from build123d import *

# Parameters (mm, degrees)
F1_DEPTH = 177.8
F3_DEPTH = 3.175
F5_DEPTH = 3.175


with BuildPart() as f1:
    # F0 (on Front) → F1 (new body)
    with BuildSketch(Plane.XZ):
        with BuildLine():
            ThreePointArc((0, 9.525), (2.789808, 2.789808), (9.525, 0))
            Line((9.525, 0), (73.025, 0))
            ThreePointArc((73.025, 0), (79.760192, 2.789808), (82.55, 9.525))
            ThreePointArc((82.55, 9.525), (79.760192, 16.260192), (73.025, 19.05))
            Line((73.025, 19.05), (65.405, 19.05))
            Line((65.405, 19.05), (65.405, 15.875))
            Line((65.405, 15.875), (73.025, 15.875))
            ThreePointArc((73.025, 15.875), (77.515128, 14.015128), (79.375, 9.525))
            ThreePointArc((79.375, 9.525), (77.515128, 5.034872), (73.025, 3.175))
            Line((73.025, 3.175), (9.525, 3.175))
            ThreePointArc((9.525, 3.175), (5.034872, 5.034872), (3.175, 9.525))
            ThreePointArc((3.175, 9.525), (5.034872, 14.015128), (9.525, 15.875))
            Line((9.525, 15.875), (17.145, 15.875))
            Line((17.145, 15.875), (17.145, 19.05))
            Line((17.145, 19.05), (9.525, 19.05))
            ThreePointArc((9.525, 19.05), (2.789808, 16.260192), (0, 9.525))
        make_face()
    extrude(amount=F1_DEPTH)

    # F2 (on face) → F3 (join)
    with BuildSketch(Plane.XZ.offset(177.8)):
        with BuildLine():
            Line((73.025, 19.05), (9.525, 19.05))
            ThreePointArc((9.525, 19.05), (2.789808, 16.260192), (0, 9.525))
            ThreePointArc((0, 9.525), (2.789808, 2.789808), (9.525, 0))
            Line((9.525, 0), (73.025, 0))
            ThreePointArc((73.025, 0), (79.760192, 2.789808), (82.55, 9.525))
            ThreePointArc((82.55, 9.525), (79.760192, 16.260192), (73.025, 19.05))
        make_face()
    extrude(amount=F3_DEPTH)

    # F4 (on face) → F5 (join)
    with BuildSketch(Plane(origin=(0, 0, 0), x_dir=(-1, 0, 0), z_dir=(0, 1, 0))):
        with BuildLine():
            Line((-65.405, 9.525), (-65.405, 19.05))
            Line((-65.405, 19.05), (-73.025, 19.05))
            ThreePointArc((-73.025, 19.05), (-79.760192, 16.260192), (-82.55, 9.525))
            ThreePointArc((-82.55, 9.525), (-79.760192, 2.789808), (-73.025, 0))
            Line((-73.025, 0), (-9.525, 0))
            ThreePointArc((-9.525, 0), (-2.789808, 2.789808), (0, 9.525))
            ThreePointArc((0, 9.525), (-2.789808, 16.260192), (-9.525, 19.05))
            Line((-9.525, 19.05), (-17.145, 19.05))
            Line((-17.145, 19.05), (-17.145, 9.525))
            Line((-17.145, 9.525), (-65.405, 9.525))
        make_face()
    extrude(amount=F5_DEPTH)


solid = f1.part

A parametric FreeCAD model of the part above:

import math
import FreeCAD as App
import Part
import Sketcher
from FreeCAD import Vector
Q = App.Units.Quantity

doc = App.newDocument("Part")
params = doc.addObject("Spreadsheet::Sheet", "Params")
for row, (alias, value) in enumerate([
    ("sketch1_radius", "0.25 in"),
    ("sketch1_width", "2.5 in"),
    ("sketch1_width2", "0.3 in"),
    ("sketch1_radius2", "0.375 in"),
    ("pad1_length", "7 in"),
    ("sketch2_width", "2.5 in"),
    ("sketch2_radius", "0.375 in"),
    ("pad2_length", "0.125 in"),
    ("sketch3_width", "0.3 in"),
    ("sketch3_width2", "2.5 in"),
    ("sketch3_radius", "0.375 in"),
    ("pad3_length", "0.125 in"),
], start=1):
    params.set(f"A{row}", alias)
    params.set(f"B{row}", "=" + value)
    params.setAlias(f"B{row}", alias)

body = doc.addObject("PartDesign::Body", "Body")

sketch1 = body.newObject("Sketcher::SketchObject", "Sketch")
sketch1.AttachmentSupport = (doc.getObject("XZ_Plane"), [""])
sketch1.MapMode = "FlatFace"
sketch1.addGeometry(Part.ArcOfCircle(Part.Circle(Vector(9.5, 9.5, 0), Vector(0, 0, 1), 9.5), math.radians(-180), math.radians(-90)), False)
sketch1.addGeometry(Part.LineSegment(Vector(9.5, 0, 0), Vector(73, 0, 0)), False)
sketch1.addGeometry(Part.ArcOfCircle(Part.Circle(Vector(73, 9.5, 0), Vector(0, 0, 1), 9.5), math.radians(-90), math.radians(0)), False)
sketch1.addGeometry(Part.ArcOfCircle(Part.Circle(Vector(73, 9.5, 0), Vector(0, 0, 1), 9.5), math.radians(0), math.radians(90)), False)
sketch1.addGeometry(Part.LineSegment(Vector(73, 19.1, 0), Vector(65.4, 19.1, 0)), False)
sketch1.addGeometry(Part.LineSegment(Vector(65.4, 19.1, 0), Vector(65.4, 15.9, 0)), False)
sketch1.addGeometry(Part.LineSegment(Vector(65.4, 15.9, 0), Vector(73, 15.9, 0)), False)
sketch1.addGeometry(Part.ArcOfCircle(Part.Circle(Vector(73, 9.5, 0), Vector(0, 0, 1), 6.4), math.radians(0), math.radians(90)), False)
sketch1.addGeometry(Part.ArcOfCircle(Part.Circle(Vector(73, 9.5, 0), Vector(0, 0, 1), 6.4), math.radians(-90), math.radians(0)), False)
sketch1.addGeometry(Part.LineSegment(Vector(73, 3.2, 0), Vector(9.5, 3.2, 0)), False)
sketch1.addGeometry(Part.ArcOfCircle(Part.Circle(Vector(9.5, 9.5, 0), Vector(0, 0, 1), 6.4), math.radians(-180), math.radians(-90)), False)
sketch1.addGeometry(Part.ArcOfCircle(Part.Circle(Vector(9.5, 9.5, 0), Vector(0, 0, 1), 6.4), math.radians(90), math.radians(180)), False)
sketch1.addGeometry(Part.LineSegment(Vector(9.5, 15.9, 0), Vector(17.1, 15.9, 0)), False)
sketch1.addGeometry(Part.LineSegment(Vector(17.1, 15.9, 0), Vector(17.1, 19.1, 0)), False)
sketch1.addGeometry(Part.LineSegment(Vector(17.1, 19.1, 0), Vector(9.5, 19.1, 0)), False)
sketch1.addGeometry(Part.ArcOfCircle(Part.Circle(Vector(9.5, 9.5, 0), Vector(0, 0, 1), 9.5), math.radians(90), math.radians(180)), False)
sketch1.addConstraint(Sketcher.Constraint("Tangent", 0, 2, 1, 1))
sketch1.addConstraint(Sketcher.Constraint("Tangent", 1, 2, 2, 1))
sketch1.addConstraint(Sketcher.Constraint("Tangent", 2, 2, 3, 1))
sketch1.addConstraint(Sketcher.Constraint("Tangent", 3, 2, 4, 1))
sketch1.addConstraint(Sketcher.Constraint("Coincident", 4, 2, 5, 1))
sketch1.addConstraint(Sketcher.Constraint("Coincident", 5, 2, 6, 1))
sketch1.addConstraint(Sketcher.Constraint("Tangent", 6, 2, 7, 2))
sketch1.addConstraint(Sketcher.Constraint("Tangent", 7, 1, 8, 2))
sketch1.addConstraint(Sketcher.Constraint("Tangent", 8, 1, 9, 1))
sketch1.addConstraint(Sketcher.Constraint("Tangent", 9, 2, 10, 2))
sketch1.addConstraint(Sketcher.Constraint("Tangent", 10, 1, 11, 2))
sketch1.addConstraint(Sketcher.Constraint("Tangent", 11, 1, 12, 1))
sketch1.addConstraint(Sketcher.Constraint("Coincident", 12, 2, 13, 1))
sketch1.addConstraint(Sketcher.Constraint("Coincident", 13, 2, 14, 1))
sketch1.addConstraint(Sketcher.Constraint("Tangent", 14, 2, 15, 1))
sketch1.addConstraint(Sketcher.Constraint("Tangent", 15, 2, 0, 1))
sketch1.addConstraint(Sketcher.Constraint("Horizontal", 1))
sketch1.addConstraint(Sketcher.Constraint("Horizontal", 4))
sketch1.addConstraint(Sketcher.Constraint("Vertical", 5))
sketch1.addConstraint(Sketcher.Constraint("Horizontal", 6))
sketch1.addConstraint(Sketcher.Constraint("Horizontal", 9))
sketch1.addConstraint(Sketcher.Constraint("Horizontal", 12))
sketch1.addConstraint(Sketcher.Constraint("Vertical", 13))
sketch1.addConstraint(Sketcher.Constraint("Horizontal", 14))
sketch1.addConstraint(Sketcher.Constraint("Coincident", 7, 3, 2, 3))
sketch1.addConstraint(Sketcher.Constraint("Coincident", 10, 3, 0, 3))
sketch1.addConstraint(Sketcher.Constraint("Equal", 0, 2))
sketch1.addConstraint(Sketcher.Constraint("Equal", 2, 3))
sketch1.addConstraint(Sketcher.Constraint("Equal", 7, 8))
sketch1.addConstraint(Sketcher.Constraint("Equal", 10, 11))
sketch1.addConstraint(Sketcher.Constraint("Equal", 3, 15))
sketch1.addConstraint(Sketcher.Constraint("PointOnObject", 0, 2, -1))
sketch1.addConstraint(Sketcher.Constraint("PointOnObject", 15, 2, -2))
sketch1.addConstraint(Sketcher.Constraint("Horizontal", 15, 3, 2, 2))
sketch1.addConstraint(Sketcher.Constraint("Horizontal", 2, 2, 7, 1))
sketch1.addConstraint(Sketcher.Constraint("Horizontal", 7, 1, 10, 1))
sketch1.addConstraint(Sketcher.Constraint("Horizontal", 10, 1, 15, 2))
sketch1.addConstraint(Sketcher.Constraint("Equal", 6, 12))
sketch1.addConstraint(Sketcher.Constraint("Radius", 7, Q("0.25 in")))
sketch1.addConstraint(Sketcher.Constraint("DistanceX", 1, 1, 1, 2, Q("2.5 in")))
sketch1.addConstraint(Sketcher.Constraint("DistanceX", 4, 2, 4, 1, Q("0.3 in")))
sketch1.addConstraint(Sketcher.Constraint("Radius", 0, Q("0.375 in")))
sketch1.setExpression("Constraints[38]", "Params.sketch1_radius")
sketch1.setExpression("Constraints[39]", "Params.sketch1_width")
sketch1.setExpression("Constraints[40]", "Params.sketch1_width2")
sketch1.setExpression("Constraints[41]", "Params.sketch1_radius2")
pad1 = body.newObject("PartDesign::Pad", "Pad")
pad1.Profile = sketch1
pad1.setExpression("Length", "Params.pad1_length")

sketch2 = body.newObject("Sketcher::SketchObject", "Sketch001")
sketch2.AttachmentSupport = (doc.getObject("XZ_Plane"), [""])
sketch2.MapMode = "FlatFace"
sketch2.AttachmentOffset = App.Placement(Vector(0, 0, 7 * 25.4), App.Rotation())
sketch2.addGeometry(Part.LineSegment(Vector(73, 19, 0), Vector(10, 19, 0)), False)
sketch2.addGeometry(Part.ArcOfCircle(Part.Circle(Vector(10, 10, 0), Vector(0, 0, 1), 10), math.radians(90), math.radians(180)), False)
sketch2.addGeometry(Part.ArcOfCircle(Part.Circle(Vector(10, 10, 0), Vector(0, 0, 1), 10), math.radians(-180), math.radians(-90)), False)
sketch2.addGeometry(Part.LineSegment(Vector(10, 0, 0), Vector(73, 0, 0)), False)
sketch2.addGeometry(Part.ArcOfCircle(Part.Circle(Vector(73, 10, 0), Vector(0, 0, 1), 10), math.radians(-90), math.radians(0)), False)
sketch2.addGeometry(Part.ArcOfCircle(Part.Circle(Vector(73, 10, 0), Vector(0, 0, 1), 10), math.radians(0), math.radians(90)), False)
sketch2.addConstraint(Sketcher.Constraint("Tangent", 0, 2, 1, 1))
sketch2.addConstraint(Sketcher.Constraint("Tangent", 1, 2, 2, 1))
sketch2.addConstraint(Sketcher.Constraint("Tangent", 2, 2, 3, 1))
sketch2.addConstraint(Sketcher.Constraint("Tangent", 3, 2, 4, 1))
sketch2.addConstraint(Sketcher.Constraint("Tangent", 4, 2, 5, 1))
sketch2.addConstraint(Sketcher.Constraint("Tangent", 5, 2, 0, 1))
sketch2.addConstraint(Sketcher.Constraint("Horizontal", 0))
sketch2.addConstraint(Sketcher.Constraint("Horizontal", 3))
sketch2.addConstraint(Sketcher.Constraint("Equal", 1, 2))
sketch2.addConstraint(Sketcher.Constraint("Equal", 2, 4))
sketch2.addConstraint(Sketcher.Constraint("PointOnObject", 1, 2, -2))
sketch2.addConstraint(Sketcher.Constraint("PointOnObject", 2, 2, -1))
sketch2.addConstraint(Sketcher.Constraint("Horizontal", 5, 3, 1, 2))
sketch2.addConstraint(Sketcher.Constraint("Horizontal", 1, 2, 4, 2))
sketch2.addConstraint(Sketcher.Constraint("DistanceX", 0, 2, 0, 1, Q("2.5 in")))
sketch2.addConstraint(Sketcher.Constraint("Radius", 1, Q("0.375 in")))
sketch2.setExpression("Constraints[14]", "Params.sketch2_width")
sketch2.setExpression("Constraints[15]", "Params.sketch2_radius")
pad2 = body.newObject("PartDesign::Pad", "Pad001")
pad2.Profile = sketch2
pad2.setExpression("Length", "Params.pad2_length")

sketch3 = body.newObject("Sketcher::SketchObject", "Sketch002")
sketch3.AttachmentSupport = (doc.getObject("XZ_Plane"), [""])
sketch3.MapMode = "FlatFace"
sketch3.addGeometry(Part.LineSegment(Vector(65, 10, 0), Vector(65, 19, 0)), False)
sketch3.addGeometry(Part.LineSegment(Vector(65, 19, 0), Vector(73, 19, 0)), False)
sketch3.addGeometry(Part.ArcOfCircle(Part.Circle(Vector(73, 10, 0), Vector(0, 0, 1), 10), math.radians(0), math.radians(90)), False)
sketch3.addGeometry(Part.ArcOfCircle(Part.Circle(Vector(73, 10, 0), Vector(0, 0, 1), 10), math.radians(-90), math.radians(0)), False)
sketch3.addGeometry(Part.LineSegment(Vector(73, 0, 0), Vector(10, 0, 0)), False)
sketch3.addGeometry(Part.ArcOfCircle(Part.Circle(Vector(10, 10, 0), Vector(0, 0, 1), 10), math.radians(-180), math.radians(-90)), False)
sketch3.addGeometry(Part.ArcOfCircle(Part.Circle(Vector(10, 10, 0), Vector(0, 0, 1), 10), math.radians(90), math.radians(180)), False)
sketch3.addGeometry(Part.LineSegment(Vector(10, 19, 0), Vector(17, 19, 0)), False)
sketch3.addGeometry(Part.LineSegment(Vector(17, 19, 0), Vector(17, 10, 0)), False)
sketch3.addGeometry(Part.LineSegment(Vector(17, 10, 0), Vector(65, 10, 0)), False)
sketch3.addConstraint(Sketcher.Constraint("Coincident", 0, 2, 1, 1))
sketch3.addConstraint(Sketcher.Constraint("Tangent", 1, 2, 2, 2))
sketch3.addConstraint(Sketcher.Constraint("Tangent", 2, 1, 3, 2))
sketch3.addConstraint(Sketcher.Constraint("Tangent", 3, 1, 4, 1))
sketch3.addConstraint(Sketcher.Constraint("Tangent", 4, 2, 5, 2))
sketch3.addConstraint(Sketcher.Constraint("Tangent", 5, 1, 6, 2))
sketch3.addConstraint(Sketcher.Constraint("Tangent", 6, 1, 7, 1))
sketch3.addConstraint(Sketcher.Constraint("Coincident", 7, 2, 8, 1))
sketch3.addConstraint(Sketcher.Constraint("Coincident", 8, 2, 9, 1))
sketch3.addConstraint(Sketcher.Constraint("Coincident", 9, 2, 0, 1))
sketch3.addConstraint(Sketcher.Constraint("Vertical", 0))
sketch3.addConstraint(Sketcher.Constraint("Horizontal", 1))
sketch3.addConstraint(Sketcher.Constraint("Horizontal", 4))
sketch3.addConstraint(Sketcher.Constraint("Horizontal", 7))
sketch3.addConstraint(Sketcher.Constraint("Vertical", 8))
sketch3.addConstraint(Sketcher.Constraint("Horizontal", 9))
sketch3.addConstraint(Sketcher.Constraint("Equal", 2, 3))
sketch3.addConstraint(Sketcher.Constraint("Equal", 3, 5))
sketch3.addConstraint(Sketcher.Constraint("Equal", 5, 6))
sketch3.addConstraint(Sketcher.Constraint("PointOnObject", 3, 1, -1))
sketch3.addConstraint(Sketcher.Constraint("PointOnObject", 5, 1, -2))
sketch3.addConstraint(Sketcher.Constraint("Horizontal", 6, 3, 2, 1))
sketch3.addConstraint(Sketcher.Constraint("Horizontal", 2, 1, 5, 1))
sketch3.addConstraint(Sketcher.Constraint("Horizontal", 5, 1, 8, 2))
sketch3.addConstraint(Sketcher.Constraint("Equal", 1, 7))
sketch3.addConstraint(Sketcher.Constraint("DistanceX", 1, 1, 1, 2, Q("0.3 in")))
sketch3.addConstraint(Sketcher.Constraint("DistanceX", 4, 2, 4, 1, Q("2.5 in")))
sketch3.addConstraint(Sketcher.Constraint("Radius", 2, Q("0.375 in")))
sketch3.setExpression("Constraints[25]", "Params.sketch3_width")
sketch3.setExpression("Constraints[26]", "Params.sketch3_width2")
sketch3.setExpression("Constraints[27]", "Params.sketch3_radius")
pad3 = body.newObject("PartDesign::Pad", "Pad002")
pad3.Profile = sketch3
pad3.setExpression("Length", "Params.pad3_length")
pad3.Reversed = True

doc.recompute()
